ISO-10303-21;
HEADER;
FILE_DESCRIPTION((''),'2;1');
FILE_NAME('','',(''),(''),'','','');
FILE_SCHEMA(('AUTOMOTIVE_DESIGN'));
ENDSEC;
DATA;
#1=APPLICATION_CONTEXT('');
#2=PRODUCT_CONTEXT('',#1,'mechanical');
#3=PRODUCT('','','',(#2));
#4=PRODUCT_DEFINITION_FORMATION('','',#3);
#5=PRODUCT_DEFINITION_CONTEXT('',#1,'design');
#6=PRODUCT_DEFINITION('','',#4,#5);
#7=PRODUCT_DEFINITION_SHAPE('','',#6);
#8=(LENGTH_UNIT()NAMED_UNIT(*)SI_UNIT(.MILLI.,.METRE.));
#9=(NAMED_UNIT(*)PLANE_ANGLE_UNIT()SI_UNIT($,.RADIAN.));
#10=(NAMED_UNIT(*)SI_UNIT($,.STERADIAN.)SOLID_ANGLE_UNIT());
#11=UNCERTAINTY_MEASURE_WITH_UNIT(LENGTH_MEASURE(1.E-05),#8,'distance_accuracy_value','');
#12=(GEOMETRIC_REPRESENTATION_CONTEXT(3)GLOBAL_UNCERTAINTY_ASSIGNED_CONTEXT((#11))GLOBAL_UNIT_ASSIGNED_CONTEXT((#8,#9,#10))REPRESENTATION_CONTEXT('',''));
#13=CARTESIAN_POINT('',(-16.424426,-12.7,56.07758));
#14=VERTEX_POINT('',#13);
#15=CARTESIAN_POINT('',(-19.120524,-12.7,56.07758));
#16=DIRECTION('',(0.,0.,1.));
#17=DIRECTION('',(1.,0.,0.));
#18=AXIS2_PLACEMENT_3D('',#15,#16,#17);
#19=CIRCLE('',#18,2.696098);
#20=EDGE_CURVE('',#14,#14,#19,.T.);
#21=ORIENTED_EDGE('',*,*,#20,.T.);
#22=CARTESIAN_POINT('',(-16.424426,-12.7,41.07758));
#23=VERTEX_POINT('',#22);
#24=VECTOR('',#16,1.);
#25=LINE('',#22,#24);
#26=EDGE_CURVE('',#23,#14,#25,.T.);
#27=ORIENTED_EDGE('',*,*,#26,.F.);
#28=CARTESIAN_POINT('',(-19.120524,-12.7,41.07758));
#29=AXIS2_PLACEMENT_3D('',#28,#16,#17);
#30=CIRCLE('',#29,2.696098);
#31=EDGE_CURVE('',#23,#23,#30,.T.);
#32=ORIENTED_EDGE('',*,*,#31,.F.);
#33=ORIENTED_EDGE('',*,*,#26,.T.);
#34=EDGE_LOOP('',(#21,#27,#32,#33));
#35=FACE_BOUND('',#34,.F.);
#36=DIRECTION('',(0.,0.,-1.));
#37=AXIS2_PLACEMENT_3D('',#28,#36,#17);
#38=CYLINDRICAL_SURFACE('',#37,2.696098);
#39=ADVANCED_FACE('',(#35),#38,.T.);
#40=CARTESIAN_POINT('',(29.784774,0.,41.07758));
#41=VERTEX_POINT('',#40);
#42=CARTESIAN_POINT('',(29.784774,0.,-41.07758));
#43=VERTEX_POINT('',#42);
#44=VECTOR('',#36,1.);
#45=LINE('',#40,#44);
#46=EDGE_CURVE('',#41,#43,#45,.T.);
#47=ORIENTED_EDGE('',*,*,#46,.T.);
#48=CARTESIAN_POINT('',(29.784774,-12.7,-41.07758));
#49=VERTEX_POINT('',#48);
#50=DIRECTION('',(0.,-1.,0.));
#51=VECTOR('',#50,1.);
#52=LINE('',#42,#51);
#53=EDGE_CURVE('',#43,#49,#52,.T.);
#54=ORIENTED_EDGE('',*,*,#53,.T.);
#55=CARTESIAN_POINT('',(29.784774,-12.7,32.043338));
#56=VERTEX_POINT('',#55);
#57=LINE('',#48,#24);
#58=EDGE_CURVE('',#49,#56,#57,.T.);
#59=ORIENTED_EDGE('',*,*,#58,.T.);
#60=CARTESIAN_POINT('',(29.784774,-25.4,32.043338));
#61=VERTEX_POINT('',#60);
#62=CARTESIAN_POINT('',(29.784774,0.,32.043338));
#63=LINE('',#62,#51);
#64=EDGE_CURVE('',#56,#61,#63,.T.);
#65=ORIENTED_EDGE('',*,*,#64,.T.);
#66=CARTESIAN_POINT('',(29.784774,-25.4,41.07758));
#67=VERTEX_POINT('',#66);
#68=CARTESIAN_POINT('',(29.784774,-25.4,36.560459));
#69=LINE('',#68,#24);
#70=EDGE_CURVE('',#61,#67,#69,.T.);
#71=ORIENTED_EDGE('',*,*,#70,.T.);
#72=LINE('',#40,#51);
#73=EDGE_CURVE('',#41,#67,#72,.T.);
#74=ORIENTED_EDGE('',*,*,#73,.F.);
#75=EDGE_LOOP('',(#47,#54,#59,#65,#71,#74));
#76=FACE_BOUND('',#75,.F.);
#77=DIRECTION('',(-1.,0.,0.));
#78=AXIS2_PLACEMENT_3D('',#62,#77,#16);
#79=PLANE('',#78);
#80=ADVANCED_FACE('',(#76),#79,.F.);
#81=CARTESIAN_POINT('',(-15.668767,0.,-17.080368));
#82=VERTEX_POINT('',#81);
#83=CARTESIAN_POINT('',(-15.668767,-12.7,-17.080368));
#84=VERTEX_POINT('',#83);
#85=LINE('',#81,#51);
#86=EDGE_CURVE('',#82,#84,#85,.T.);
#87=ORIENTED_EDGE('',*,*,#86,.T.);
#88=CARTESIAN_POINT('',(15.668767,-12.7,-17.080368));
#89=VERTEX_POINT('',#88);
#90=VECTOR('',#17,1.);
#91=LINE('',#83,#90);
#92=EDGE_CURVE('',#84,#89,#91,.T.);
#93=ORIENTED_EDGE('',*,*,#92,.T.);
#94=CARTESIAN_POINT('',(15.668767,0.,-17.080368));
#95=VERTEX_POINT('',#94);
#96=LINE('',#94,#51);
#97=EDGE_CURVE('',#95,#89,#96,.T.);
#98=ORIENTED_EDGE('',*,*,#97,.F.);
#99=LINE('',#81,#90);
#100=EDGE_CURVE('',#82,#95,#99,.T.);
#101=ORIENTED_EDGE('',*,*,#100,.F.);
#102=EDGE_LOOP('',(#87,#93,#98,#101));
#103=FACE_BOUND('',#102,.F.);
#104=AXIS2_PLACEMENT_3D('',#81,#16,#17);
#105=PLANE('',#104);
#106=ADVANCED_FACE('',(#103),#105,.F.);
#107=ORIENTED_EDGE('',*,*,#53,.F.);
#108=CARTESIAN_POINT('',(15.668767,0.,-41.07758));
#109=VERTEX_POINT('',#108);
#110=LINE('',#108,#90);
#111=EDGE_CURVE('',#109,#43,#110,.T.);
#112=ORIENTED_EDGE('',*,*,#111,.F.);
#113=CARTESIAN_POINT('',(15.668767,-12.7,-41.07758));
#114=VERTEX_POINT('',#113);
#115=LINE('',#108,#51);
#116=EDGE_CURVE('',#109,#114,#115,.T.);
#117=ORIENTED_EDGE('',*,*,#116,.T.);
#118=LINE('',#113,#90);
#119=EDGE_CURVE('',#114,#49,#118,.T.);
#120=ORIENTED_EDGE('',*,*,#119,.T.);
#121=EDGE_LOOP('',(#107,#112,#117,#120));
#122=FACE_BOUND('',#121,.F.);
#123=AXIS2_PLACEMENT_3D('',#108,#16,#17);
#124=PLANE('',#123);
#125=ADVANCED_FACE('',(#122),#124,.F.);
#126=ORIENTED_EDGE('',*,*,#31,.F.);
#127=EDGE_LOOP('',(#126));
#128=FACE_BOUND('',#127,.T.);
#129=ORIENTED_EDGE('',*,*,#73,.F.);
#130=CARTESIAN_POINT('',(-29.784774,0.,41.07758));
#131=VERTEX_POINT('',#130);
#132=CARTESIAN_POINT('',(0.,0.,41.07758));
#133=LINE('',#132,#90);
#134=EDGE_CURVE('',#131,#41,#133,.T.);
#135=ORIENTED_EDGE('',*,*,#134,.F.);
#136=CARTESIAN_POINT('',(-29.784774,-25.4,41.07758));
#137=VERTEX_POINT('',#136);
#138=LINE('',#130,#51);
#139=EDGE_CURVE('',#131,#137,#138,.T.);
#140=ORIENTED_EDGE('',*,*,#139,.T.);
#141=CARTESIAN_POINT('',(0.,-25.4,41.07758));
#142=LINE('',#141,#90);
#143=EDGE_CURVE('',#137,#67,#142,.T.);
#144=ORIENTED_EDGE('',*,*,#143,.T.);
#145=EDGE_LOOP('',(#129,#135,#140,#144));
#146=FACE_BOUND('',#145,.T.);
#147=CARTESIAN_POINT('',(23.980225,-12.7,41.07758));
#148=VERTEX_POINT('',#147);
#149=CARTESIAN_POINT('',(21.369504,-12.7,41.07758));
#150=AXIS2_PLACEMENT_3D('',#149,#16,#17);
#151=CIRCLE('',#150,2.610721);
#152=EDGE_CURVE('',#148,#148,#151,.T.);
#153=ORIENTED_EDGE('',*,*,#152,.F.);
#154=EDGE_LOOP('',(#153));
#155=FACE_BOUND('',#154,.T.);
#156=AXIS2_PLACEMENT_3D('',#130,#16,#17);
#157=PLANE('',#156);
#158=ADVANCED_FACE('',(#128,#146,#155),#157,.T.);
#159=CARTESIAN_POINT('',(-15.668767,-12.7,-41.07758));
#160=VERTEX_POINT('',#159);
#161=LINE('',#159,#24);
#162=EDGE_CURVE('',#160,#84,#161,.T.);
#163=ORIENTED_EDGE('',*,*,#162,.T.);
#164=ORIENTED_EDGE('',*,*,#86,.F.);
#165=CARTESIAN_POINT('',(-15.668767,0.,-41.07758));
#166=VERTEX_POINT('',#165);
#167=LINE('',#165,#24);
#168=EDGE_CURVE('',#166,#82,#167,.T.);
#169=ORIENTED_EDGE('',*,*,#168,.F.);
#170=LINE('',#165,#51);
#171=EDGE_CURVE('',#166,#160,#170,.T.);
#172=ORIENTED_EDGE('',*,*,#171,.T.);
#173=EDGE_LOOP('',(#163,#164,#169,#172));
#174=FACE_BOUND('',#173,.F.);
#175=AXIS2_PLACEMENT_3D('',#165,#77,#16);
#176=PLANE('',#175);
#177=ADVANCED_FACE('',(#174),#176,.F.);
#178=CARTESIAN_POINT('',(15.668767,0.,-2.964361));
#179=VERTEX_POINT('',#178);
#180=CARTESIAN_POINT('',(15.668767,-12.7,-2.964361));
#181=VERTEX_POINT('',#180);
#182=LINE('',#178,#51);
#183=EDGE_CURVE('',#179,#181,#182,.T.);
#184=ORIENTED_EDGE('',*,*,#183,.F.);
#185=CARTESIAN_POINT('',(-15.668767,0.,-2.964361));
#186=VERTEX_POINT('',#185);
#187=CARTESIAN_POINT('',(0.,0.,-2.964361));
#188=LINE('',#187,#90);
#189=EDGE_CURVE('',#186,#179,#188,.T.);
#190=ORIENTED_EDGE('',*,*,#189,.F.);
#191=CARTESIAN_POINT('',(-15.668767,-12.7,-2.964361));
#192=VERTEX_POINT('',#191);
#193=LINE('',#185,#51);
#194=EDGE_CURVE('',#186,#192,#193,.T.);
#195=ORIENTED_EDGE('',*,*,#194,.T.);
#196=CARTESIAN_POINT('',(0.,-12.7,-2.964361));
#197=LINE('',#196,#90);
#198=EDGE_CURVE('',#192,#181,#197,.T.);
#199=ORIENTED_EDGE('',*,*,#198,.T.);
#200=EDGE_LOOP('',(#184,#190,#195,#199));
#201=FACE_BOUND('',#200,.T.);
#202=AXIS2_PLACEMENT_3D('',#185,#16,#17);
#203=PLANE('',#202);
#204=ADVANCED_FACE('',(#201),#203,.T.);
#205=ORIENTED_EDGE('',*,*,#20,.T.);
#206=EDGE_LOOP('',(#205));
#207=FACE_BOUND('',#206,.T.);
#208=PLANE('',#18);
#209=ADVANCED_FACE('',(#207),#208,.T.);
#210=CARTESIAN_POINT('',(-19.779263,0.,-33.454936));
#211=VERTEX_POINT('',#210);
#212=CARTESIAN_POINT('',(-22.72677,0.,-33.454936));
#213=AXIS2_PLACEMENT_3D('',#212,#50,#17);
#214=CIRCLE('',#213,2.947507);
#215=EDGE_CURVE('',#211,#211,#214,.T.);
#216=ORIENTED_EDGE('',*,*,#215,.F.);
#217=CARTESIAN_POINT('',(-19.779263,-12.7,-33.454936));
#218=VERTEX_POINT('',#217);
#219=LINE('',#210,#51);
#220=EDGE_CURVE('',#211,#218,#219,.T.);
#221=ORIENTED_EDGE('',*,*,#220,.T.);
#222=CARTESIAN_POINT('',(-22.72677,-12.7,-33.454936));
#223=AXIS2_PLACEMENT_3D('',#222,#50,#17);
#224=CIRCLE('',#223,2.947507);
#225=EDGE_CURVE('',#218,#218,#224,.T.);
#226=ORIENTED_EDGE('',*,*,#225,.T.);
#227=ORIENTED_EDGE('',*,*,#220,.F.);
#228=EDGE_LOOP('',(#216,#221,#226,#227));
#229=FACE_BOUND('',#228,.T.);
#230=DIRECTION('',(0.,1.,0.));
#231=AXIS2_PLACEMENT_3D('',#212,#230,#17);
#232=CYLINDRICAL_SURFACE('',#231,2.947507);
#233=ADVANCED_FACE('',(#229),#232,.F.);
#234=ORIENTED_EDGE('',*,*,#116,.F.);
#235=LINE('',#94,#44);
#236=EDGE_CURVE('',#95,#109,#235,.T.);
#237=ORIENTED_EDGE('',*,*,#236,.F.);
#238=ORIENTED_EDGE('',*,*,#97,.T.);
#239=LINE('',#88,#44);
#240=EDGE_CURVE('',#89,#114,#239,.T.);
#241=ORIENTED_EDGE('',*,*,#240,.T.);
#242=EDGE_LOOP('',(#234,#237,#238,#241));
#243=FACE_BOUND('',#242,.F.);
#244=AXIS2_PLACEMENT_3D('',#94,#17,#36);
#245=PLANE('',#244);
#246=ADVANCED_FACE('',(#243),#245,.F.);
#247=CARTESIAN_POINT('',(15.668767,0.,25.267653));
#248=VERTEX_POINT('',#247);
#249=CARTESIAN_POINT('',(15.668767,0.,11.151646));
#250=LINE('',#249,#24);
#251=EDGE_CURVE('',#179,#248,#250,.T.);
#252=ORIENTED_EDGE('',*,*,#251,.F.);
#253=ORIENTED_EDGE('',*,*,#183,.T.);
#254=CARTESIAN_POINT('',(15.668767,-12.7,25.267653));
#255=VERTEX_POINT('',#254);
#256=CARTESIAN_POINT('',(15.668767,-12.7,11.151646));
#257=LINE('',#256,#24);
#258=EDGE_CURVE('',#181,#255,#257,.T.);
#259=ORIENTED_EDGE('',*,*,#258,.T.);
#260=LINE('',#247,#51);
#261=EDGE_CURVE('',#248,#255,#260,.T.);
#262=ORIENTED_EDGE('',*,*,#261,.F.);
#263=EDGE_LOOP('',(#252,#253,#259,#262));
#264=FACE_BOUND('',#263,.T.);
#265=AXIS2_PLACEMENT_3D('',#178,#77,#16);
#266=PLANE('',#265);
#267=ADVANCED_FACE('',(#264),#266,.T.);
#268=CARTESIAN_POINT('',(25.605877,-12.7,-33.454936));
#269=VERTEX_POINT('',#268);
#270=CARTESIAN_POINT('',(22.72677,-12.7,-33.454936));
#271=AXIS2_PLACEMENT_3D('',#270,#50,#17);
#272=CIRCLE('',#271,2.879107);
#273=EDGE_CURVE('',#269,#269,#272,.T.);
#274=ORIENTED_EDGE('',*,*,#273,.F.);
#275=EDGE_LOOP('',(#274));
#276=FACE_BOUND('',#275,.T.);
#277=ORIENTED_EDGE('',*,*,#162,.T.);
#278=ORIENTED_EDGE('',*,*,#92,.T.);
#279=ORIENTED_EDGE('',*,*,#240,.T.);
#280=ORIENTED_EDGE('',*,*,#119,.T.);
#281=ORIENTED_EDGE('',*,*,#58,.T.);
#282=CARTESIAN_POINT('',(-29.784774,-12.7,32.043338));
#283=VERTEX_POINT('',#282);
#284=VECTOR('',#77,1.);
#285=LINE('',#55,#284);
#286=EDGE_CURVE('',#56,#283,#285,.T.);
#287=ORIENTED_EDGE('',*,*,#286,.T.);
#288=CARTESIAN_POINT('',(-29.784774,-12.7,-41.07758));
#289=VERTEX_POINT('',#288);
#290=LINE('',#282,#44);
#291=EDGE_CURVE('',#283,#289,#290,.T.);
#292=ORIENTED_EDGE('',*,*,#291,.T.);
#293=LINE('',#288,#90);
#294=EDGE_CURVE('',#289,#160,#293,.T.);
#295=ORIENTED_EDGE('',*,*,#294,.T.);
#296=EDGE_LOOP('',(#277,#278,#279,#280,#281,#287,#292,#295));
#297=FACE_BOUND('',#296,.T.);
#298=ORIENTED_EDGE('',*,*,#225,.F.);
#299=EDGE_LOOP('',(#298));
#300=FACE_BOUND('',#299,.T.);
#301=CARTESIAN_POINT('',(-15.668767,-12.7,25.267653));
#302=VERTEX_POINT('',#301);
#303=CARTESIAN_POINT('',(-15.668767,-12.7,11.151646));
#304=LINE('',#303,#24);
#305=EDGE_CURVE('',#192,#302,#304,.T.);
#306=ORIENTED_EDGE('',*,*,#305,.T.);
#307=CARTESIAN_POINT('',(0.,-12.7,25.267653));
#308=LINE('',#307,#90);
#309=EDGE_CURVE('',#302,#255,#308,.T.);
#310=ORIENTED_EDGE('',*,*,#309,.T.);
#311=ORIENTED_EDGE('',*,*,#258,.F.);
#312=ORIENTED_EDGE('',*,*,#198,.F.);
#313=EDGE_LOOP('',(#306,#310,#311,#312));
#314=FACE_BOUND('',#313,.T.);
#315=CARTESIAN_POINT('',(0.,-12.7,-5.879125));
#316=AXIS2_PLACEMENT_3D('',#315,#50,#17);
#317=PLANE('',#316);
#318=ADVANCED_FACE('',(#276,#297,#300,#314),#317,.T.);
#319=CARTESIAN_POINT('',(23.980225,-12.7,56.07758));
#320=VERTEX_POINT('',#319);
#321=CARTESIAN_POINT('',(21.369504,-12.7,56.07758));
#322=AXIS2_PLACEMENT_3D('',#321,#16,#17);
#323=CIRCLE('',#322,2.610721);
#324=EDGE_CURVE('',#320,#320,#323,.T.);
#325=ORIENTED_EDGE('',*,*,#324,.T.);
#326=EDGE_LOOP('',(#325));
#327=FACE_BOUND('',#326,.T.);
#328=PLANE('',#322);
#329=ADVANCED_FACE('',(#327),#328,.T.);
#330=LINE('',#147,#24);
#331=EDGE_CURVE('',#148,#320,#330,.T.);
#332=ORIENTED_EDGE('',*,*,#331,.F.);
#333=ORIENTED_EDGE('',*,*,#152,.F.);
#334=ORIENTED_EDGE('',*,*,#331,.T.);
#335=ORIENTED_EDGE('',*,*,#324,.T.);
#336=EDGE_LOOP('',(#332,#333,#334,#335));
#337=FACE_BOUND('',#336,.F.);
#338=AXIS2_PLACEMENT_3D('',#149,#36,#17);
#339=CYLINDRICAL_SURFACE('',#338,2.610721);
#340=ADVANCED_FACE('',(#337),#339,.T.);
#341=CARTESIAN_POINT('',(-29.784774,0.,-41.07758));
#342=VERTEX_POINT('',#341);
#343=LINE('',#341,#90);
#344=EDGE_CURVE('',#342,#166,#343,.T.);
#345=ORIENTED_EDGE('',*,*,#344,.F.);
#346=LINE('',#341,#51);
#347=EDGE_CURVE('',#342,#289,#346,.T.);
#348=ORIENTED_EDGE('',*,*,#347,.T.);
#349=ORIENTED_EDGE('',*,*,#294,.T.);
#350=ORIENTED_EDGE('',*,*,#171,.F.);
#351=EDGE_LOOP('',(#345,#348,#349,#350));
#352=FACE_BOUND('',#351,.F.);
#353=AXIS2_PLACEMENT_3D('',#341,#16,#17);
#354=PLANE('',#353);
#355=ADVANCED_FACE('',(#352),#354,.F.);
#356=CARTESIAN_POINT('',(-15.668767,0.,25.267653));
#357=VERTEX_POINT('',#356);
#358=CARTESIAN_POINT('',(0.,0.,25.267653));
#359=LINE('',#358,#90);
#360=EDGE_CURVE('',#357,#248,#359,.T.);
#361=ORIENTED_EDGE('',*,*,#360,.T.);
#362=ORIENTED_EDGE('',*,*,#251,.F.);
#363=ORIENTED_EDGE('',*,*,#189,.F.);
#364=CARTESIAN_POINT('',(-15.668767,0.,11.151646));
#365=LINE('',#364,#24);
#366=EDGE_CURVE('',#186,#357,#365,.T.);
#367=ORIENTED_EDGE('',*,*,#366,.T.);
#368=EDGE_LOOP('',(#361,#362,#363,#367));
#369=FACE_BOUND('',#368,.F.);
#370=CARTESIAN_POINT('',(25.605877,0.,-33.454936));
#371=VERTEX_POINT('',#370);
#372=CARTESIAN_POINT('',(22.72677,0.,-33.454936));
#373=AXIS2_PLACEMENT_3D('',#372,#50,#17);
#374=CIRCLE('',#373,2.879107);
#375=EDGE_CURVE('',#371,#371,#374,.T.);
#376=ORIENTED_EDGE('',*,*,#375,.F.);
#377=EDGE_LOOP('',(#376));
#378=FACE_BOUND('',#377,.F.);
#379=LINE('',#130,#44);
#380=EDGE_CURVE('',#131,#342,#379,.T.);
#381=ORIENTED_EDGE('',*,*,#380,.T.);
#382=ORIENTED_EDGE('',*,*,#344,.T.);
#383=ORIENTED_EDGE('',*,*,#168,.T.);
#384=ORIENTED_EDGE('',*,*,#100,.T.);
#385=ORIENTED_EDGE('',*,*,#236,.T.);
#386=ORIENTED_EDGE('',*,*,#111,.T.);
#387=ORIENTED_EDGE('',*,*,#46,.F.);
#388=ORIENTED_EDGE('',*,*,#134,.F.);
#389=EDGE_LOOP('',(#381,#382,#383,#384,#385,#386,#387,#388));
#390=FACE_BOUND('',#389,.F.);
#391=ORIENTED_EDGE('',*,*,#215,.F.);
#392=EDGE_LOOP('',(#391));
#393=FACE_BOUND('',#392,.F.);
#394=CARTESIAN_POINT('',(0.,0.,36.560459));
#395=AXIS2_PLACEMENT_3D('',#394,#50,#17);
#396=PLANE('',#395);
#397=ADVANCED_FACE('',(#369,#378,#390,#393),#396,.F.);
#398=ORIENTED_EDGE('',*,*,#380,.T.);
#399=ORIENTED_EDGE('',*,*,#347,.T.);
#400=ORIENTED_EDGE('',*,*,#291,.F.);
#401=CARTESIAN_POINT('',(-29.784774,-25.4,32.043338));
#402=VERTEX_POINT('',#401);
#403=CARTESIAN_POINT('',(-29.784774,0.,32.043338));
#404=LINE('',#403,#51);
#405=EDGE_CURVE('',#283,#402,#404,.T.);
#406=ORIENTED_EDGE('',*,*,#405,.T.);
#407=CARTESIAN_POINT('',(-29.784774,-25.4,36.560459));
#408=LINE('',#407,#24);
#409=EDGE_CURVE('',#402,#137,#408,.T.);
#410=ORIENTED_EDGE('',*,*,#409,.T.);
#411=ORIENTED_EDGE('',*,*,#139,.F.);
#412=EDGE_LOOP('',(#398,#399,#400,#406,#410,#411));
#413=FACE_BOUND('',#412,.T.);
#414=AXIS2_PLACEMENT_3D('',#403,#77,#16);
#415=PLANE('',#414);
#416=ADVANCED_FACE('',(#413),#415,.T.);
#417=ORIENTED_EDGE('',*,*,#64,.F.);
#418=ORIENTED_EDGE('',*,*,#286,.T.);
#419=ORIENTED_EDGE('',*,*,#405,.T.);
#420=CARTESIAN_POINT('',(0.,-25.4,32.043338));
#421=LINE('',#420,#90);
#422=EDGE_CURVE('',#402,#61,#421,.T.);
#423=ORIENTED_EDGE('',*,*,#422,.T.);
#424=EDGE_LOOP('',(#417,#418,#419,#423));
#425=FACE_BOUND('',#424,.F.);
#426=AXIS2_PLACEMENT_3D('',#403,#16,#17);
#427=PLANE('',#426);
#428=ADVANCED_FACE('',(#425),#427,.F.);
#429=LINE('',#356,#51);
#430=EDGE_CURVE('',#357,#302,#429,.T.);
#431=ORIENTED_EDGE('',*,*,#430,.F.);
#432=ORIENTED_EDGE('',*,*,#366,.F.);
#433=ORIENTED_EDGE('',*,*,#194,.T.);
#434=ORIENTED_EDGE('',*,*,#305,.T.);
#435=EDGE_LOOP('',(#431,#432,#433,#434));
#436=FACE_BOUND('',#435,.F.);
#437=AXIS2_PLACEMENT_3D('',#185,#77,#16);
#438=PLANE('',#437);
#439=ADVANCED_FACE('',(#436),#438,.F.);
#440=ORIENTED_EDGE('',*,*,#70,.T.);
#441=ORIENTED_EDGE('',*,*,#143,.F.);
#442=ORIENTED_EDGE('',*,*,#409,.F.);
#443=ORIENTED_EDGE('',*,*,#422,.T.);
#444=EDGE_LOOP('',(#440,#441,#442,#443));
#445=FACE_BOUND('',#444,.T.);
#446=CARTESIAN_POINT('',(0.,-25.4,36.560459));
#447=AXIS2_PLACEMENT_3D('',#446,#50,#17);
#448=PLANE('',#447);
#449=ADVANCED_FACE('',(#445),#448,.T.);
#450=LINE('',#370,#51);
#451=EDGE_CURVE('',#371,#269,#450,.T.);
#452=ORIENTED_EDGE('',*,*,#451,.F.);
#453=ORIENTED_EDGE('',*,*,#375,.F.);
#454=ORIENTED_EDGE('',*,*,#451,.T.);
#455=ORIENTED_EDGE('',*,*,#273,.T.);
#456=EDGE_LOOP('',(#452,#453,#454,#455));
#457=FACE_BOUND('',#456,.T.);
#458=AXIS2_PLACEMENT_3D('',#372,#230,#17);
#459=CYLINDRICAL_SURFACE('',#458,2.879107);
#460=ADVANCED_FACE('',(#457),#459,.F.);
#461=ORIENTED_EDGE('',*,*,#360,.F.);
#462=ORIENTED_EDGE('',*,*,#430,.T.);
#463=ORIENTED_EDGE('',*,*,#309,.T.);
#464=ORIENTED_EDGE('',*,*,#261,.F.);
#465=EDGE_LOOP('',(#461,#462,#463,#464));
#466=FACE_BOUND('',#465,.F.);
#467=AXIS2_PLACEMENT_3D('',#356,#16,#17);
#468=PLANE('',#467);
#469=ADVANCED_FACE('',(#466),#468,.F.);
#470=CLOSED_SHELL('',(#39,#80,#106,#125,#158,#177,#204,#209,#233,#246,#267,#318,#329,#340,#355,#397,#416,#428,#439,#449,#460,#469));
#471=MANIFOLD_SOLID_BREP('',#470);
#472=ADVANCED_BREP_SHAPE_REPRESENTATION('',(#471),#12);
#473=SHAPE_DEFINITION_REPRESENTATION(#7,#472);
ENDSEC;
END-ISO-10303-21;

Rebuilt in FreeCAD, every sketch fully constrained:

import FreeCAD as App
import Part
import Sketcher
Q = App.Units.Quantity


def add_polygon(sketch, points):
    """Adds a closed chain of lines whose ends are joined by coincident constraints."""
    first, n = sketch.GeometryCount, len(points)
    for a, b in zip(points, points[1:] + points[:1]):
        sketch.addGeometry(Part.LineSegment(App.Vector(*a, 0), App.Vector(*b, 0)), False)
    for i in range(n):
        sketch.addConstraint(Sketcher.Constraint("Coincident", first + i, 2, first + (i + 1) % n, 1))

doc = App.newDocument("Part")
body = doc.addObject("PartDesign::Body", "Body")

sketch1 = body.newObject("Sketcher::SketchObject", "Sketch")
sketch1.AttachmentSupport = (doc.getObject("XZ_Plane"), [""])
sketch1.MapMode = "FlatFace"
add_polygon(sketch1, [(29.8, 32), (-29.8, 32), (-29.8, -41.1), (-15.7, -41.1), (-15.7, -17.1), (15.7, -17.1), (15.7, -41.1), (29.8, -41.1)])
sketch1.addGeometry(Part.Circle(App.Vector(-22.7, -33.5, 0), App.Vector(0, 0, 1), 2.9), False)
sketch1.addGeometry(Part.Circle(App.Vector(22.7, -33.5, 0), App.Vector(0, 0, 1), 2.9), False)
add_polygon(sketch1, [(15.7, -3), (-15.7, -3), (-15.7, 25.3), (15.7, 25.3)])
sketch1.addConstraint([
    Sketcher.Constraint("Horizontal", 0),
    Sketcher.Constraint("Vertical", 1),
    Sketcher.Constraint("Horizontal", 2),
    Sketcher.Constraint("Vertical", 3),
    Sketcher.Constraint("Horizontal", 4),
    Sketcher.Constraint("Vertical", 5),
    Sketcher.Constraint("Horizontal", 6),
    Sketcher.Constraint("Vertical", 7),
    Sketcher.Constraint("Horizontal", 10),
    Sketcher.Constraint("Vertical", 11),
    Sketcher.Constraint("Horizontal", 12),
    Sketcher.Constraint("Vertical", 13),
    Sketcher.Constraint("Symmetric", 8, 3, 9, 3, -2),
    Sketcher.Constraint("Symmetric", 2, 2, 5, 2, -2),
    Sketcher.Constraint("Vertical", 3, 2, 10, 2),
    Sketcher.Constraint("Vertical", 5, 2, 12, 2),
    Sketcher.Constraint("Equal", 2, 6),
    Sketcher.Constraint("Diameter", 8, Q("5.895014 mm")),
    Sketcher.Constraint("Diameter", 9, Q("5.758214 mm")),
    Sketcher.Constraint("DistanceY", 3, 1, 3, 2, Q("23.997212 mm")),
    Sketcher.Constraint("DistanceY", 10, 2, 0, 2, Q("35.007699 mm")),
    Sketcher.Constraint("DistanceX", 0, 2, 0, 1, Q("59.569548 mm")),
    Sketcher.Constraint("DistanceX", 2, 1, 2, 2, Q("14.116007 mm")),
    Sketcher.Constraint("DistanceY", 1, 2, 1, 1, Q("73.120918 mm")),
    Sketcher.Constraint("DistanceY", 11, 1, 11, 2, Q("28.232014 mm")),
    Sketcher.Constraint("DistanceX", 8, 3, -1, 1, Q("22.72677 mm")),
    Sketcher.Constraint("DistanceY", 1, 2, -1, 1, Q("41.07758 mm")),
    Sketcher.Constraint("DistanceY", 8, 3, -1, 1, Q("33.454936 mm")),
])
pad1 = body.newObject("PartDesign::Pad", "Pad")
pad1.Profile = sketch1
pad1.Length = Q("0.5 in")

sketch2 = body.newObject("Sketcher::SketchObject", "Sketch001")
sketch2.AttachmentSupport = (doc.getObject("XZ_Plane"), [""])
sketch2.MapMode = "FlatFace"
add_polygon(sketch2, [(-30, 41), (-30, 32), (30, 32), (30, 41)])
sketch2.addConstraint([
    Sketcher.Constraint("Vertical", 0),
    Sketcher.Constraint("Horizontal", 1),
    Sketcher.Constraint("Vertical", 2),
    Sketcher.Constraint("Horizontal", 3),
    Sketcher.Constraint("DistanceY", 0, 2, 0, 1, Q("9.034242 mm")),
    Sketcher.Constraint("DistanceX", 1, 1, 1, 2, Q("59.569548 mm")),
    Sketcher.Constraint("DistanceY", -1, 1, 2, 2, Q("41.07758 mm")),
    Sketcher.Constraint("DistanceX", 0, 2, -1, 1, Q("29.784774 mm")),
])
pad2 = body.newObject("PartDesign::Pad", "Pad001")
pad2.Profile = sketch2
pad2.Length = Q("1 in")

sketch3 = body.newObject("Sketcher::SketchObject", "Sketch002")
sketch3.AttachmentSupport = (doc.getObject("XY_Plane"), [""])
sketch3.MapMode = "FlatFace"
sketch3.AttachmentOffset = App.Placement(App.Vector(0, 0, 41.07758), App.Rotation())
sketch3.addGeometry(Part.Circle(App.Vector(-19.1, -12.7, 0), App.Vector(0, 0, 1), 2.7), False)
sketch3.addConstraint([
    Sketcher.Constraint("DistanceY", 0, 3, -1, 1, Q("0.5 in")),
    Sketcher.Constraint("Diameter", 0, Q("5.392196 mm")),
    Sketcher.Constraint("DistanceX", 0, 3, -1, 1, Q("19.120524 mm")),
])
pad3 = body.newObject("PartDesign::Pad", "Pad002")
pad3.Profile = sketch3
pad3.Length = 15

sketch4 = body.newObject("Sketcher::SketchObject", "Sketch003")
sketch4.AttachmentSupport = (doc.getObject("XY_Plane"), [""])
sketch4.MapMode = "FlatFace"
sketch4.AttachmentOffset = App.Placement(App.Vector(0, 0, 41.07758), App.Rotation())
sketch4.addGeometry(Part.Circle(App.Vector(21.4, -12.7, 0), App.Vector(0, 0, 1), 2.6), False)
sketch4.addConstraint([
    Sketcher.Constraint("DistanceY", 0, 3, -1, 1, Q("0.5 in")),
    Sketcher.Constraint("Diameter", 0, Q("5.221442 mm")),
    Sketcher.Constraint("DistanceX", -1, 1, 0, 3, Q("21.369504 mm")),
])
pad4 = body.newObject("PartDesign::Pad", "Pad003")
pad4.Profile = sketch4
pad4.Length = 15

doc.recompute()
